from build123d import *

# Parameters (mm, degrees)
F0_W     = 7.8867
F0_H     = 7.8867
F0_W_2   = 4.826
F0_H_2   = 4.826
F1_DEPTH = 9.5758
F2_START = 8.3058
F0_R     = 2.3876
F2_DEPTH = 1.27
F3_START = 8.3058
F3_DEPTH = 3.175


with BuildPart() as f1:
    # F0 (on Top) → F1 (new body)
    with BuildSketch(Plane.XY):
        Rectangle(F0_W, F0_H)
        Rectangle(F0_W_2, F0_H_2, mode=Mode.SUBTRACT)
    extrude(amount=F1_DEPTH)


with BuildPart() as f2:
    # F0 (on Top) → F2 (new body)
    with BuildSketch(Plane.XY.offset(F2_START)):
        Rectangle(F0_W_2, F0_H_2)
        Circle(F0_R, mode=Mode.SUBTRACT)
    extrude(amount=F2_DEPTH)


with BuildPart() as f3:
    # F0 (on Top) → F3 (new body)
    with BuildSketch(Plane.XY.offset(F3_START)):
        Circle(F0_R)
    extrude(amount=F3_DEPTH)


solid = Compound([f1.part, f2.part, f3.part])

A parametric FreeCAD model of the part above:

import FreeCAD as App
import Part
import Sketcher
Q = App.Units.Quantity


def add_polygon(sketch, points):
    """Adds a closed chain of lines whose ends are joined by coincident constraints."""
    first, n = sketch.GeometryCount, len(points)
    for a, b in zip(points, points[1:] + points[:1]):
        sketch.addGeometry(Part.LineSegment(App.Vector(*a, 0), App.Vector(*b, 0)), False)
    for i in range(n):
        sketch.addConstraint(Sketcher.Constraint("Coincident", first + i, 2, first + (i + 1) % n, 1))

doc = App.newDocument("Part")
body = doc.addObject("PartDesign::Body", "Body")

sketch1 = body.newObject("Sketcher::SketchObject", "Sketch")
sketch1.AttachmentSupport = (doc.getObject("XY_Plane"), [""])
sketch1.MapMode = "FlatFace"
add_polygon(sketch1, [(-3.9, 3.9), (-3.9, -3.9), (3.9, -3.9), (3.9, 3.9)])
add_polygon(sketch1, [(2.4, -2.4), (-2.4, -2.4), (-2.4, 2.4), (2.4, 2.4)])
sketch1.addConstraint(Sketcher.Constraint("Vertical", 0))
sketch1.addConstraint(Sketcher.Constraint("Horizontal", 1))
sketch1.addConstraint(Sketcher.Constraint("Vertical", 2))
sketch1.addConstraint(Sketcher.Constraint("Horizontal", 3))
sketch1.addConstraint(Sketcher.Constraint("Horizontal", 4))
sketch1.addConstraint(Sketcher.Constraint("Vertical", 5))
sketch1.addConstraint(Sketcher.Constraint("Horizontal", 6))
sketch1.addConstraint(Sketcher.Constraint("Vertical", 7))
sketch1.addConstraint(Sketcher.Constraint("Symmetric", 0, 2, 2, 2, -1, 1))
sketch1.addConstraint(Sketcher.Constraint("Symmetric", 4, 2, 6, 2, -1, 1))
sketch1.addConstraint(Sketcher.Constraint("Equal", 3, 0))
sketch1.addConstraint(Sketcher.Constraint("Equal", 6, 5))
sketch1.addConstraint(Sketcher.Constraint("DistanceX", 4, 2, 4, 1, Q("0.19 in")))
sketch1.addConstraint(Sketcher.Constraint("DistanceX", 1, 1, 1, 2, Q("0.3105 in")))
pad1 = body.newObject("PartDesign::Pad", "Pad")
pad1.Profile = sketch1
pad1.Length = Q("0.377 in")
body2 = doc.addObject("PartDesign::Body", "Body001")

sketch2 = body2.newObject("Sketcher::SketchObject", "Sketch001")
sketch2.AttachmentSupport = (doc.getObject("XY_Plane001"), [""])
sketch2.MapMode = "FlatFace"
sketch2.AttachmentOffset = App.Placement(App.Vector(0, 0, 0.327 * 25.4), App.Rotation())
add_polygon(sketch2, [(-2.4, 2.4), (-2.4, -2.4), (2.4, -2.4), (2.4, 2.4)])
sketch2.addGeometry(Part.Circle(App.Vector(0, 0, 0), App.Vector(0, 0, 1), 2.4), False)
sketch2.addConstraint(Sketcher.Constraint("Vertical", 0))
sketch2.addConstraint(Sketcher.Constraint("Horizontal", 1))
sketch2.addConstraint(Sketcher.Constraint("Vertical", 2))
sketch2.addConstraint(Sketcher.Constraint("Horizontal", 3))
sketch2.addConstraint(Sketcher.Constraint("Coincident", 4, 3, -1, 1))
sketch2.addConstraint(Sketcher.Constraint("Symmetric", 0, 2, 2, 2, -1, 1))
sketch2.addConstraint(Sketcher.Constraint("Equal", 3, 0))
sketch2.addConstraint(Sketcher.Constraint("Diameter", 4, Q("0.188 in")))
sketch2.addConstraint(Sketcher.Constraint("DistanceX", 1, 1, 1, 2, Q("0.19 in")))
pad2 = body2.newObject("PartDesign::Pad", "Pad001")
pad2.Profile = sketch2
pad2.Length = Q("0.05 in")
body3 = doc.addObject("PartDesign::Body", "Body002")

sketch3 = body3.newObject("Sketcher::SketchObject", "Sketch002")
sketch3.AttachmentSupport = (doc.getObject("XY_Plane002"), [""])
sketch3.MapMode = "FlatFace"
sketch3.AttachmentOffset = App.Placement(App.Vector(0, 0, 0.327 * 25.4), App.Rotation())
sketch3.addGeometry(Part.Circle(App.Vector(0, 0, 0), App.Vector(0, 0, 1), 2.4), False)
sketch3.addConstraint(Sketcher.Constraint("Coincident", 0, 3, -1, 1))
sketch3.addConstraint(Sketcher.Constraint("Diameter", 0, Q("0.188 in")))
pad3 = body3.newObject("PartDesign::Pad", "Pad002")
pad3.Profile = sketch3
pad3.Length = Q("0.125 in")

doc.recompute()
